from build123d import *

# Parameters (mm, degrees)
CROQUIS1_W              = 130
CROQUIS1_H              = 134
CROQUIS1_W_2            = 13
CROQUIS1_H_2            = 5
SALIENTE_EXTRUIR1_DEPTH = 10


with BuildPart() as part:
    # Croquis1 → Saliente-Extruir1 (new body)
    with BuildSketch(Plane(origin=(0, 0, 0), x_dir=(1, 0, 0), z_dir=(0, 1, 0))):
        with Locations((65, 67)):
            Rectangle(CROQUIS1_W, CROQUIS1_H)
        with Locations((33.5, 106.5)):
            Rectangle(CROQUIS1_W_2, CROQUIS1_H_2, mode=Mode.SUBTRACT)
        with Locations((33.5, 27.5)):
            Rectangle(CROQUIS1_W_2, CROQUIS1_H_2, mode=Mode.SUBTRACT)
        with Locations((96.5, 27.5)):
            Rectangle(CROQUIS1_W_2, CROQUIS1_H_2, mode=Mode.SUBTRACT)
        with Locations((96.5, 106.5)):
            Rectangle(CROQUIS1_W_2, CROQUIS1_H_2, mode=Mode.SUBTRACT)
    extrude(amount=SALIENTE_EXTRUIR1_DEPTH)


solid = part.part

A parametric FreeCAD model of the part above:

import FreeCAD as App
import Part
import Sketcher

doc = App.newDocument("Part")
body = doc.addObject("PartDesign::Body", "Body")

# Sketch on XZ plane
sketch1 = body.newObject("Sketcher::SketchObject", "Sketch")
sketch1.AttachmentSupport = (doc.getObject("XZ_Plane"), [""])
sketch1.MapMode = "FlatFace"
sketch1.addGeometry(Part.LineSegment(App.Vector(0, -134, 0), App.Vector(0, 0, 0)), False)
sketch1.addGeometry(Part.LineSegment(App.Vector(0, 0, 0), App.Vector(130, 0, 0)), False)
sketch1.addGeometry(Part.LineSegment(App.Vector(130, 0, 0), App.Vector(130, -134, 0)), False)
sketch1.addGeometry(Part.LineSegment(App.Vector(130, -134, 0), App.Vector(0, -134, 0)), False)
sketch1.addGeometry(Part.LineSegment(App.Vector(40, -25, 0), App.Vector(27, -25, 0)), False)
sketch1.addGeometry(Part.LineSegment(App.Vector(27, -25, 0), App.Vector(27, -30, 0)), False)
sketch1.addGeometry(Part.LineSegment(App.Vector(27, -30, 0), App.Vector(40, -30, 0)), False)
sketch1.addGeometry(Part.LineSegment(App.Vector(40, -30, 0), App.Vector(40, -25, 0)), False)
sketch1.addGeometry(Part.LineSegment(App.Vector(103, -25, 0), App.Vector(90, -25, 0)), False)
sketch1.addGeometry(Part.LineSegment(App.Vector(90, -25, 0), App.Vector(90, -30, 0)), False)
sketch1.addGeometry(Part.LineSegment(App.Vector(90, -30, 0), App.Vector(103, -30, 0)), False)
sketch1.addGeometry(Part.LineSegment(App.Vector(103, -30, 0), App.Vector(103, -25, 0)), False)
sketch1.addGeometry(Part.LineSegment(App.Vector(40, -104, 0), App.Vector(27, -104, 0)), False)
sketch1.addGeometry(Part.LineSegment(App.Vector(27, -104, 0), App.Vector(27, -109, 0)), False)
sketch1.addGeometry(Part.LineSegment(App.Vector(27, -109, 0), App.Vector(40, -109, 0)), False)
sketch1.addGeometry(Part.LineSegment(App.Vector(40, -109, 0), App.Vector(40, -104, 0)), False)
sketch1.addGeometry(Part.LineSegment(App.Vector(103, -104, 0), App.Vector(90, -104, 0)), False)
sketch1.addGeometry(Part.LineSegment(App.Vector(90, -104, 0), App.Vector(90, -109, 0)), False)
sketch1.addGeometry(Part.LineSegment(App.Vector(90, -109, 0), App.Vector(103, -109, 0)), False)
sketch1.addGeometry(Part.LineSegment(App.Vector(103, -109, 0), App.Vector(103, -104, 0)), False)
sketch1.addConstraint(Sketcher.Constraint("Coincident", 0, 2, 1, 1))
sketch1.addConstraint(Sketcher.Constraint("Coincident", 1, 2, 2, 1))
sketch1.addConstraint(Sketcher.Constraint("Coincident", 2, 2, 3, 1))
sketch1.addConstraint(Sketcher.Constraint("Coincident", 3, 2, 0, 1))
sketch1.addConstraint(Sketcher.Constraint("Coincident", 4, 2, 5, 1))
sketch1.addConstraint(Sketcher.Constraint("Coincident", 5, 2, 6, 1))
sketch1.addConstraint(Sketcher.Constraint("Coincident", 6, 2, 7, 1))
sketch1.addConstraint(Sketcher.Constraint("Coincident", 7, 2, 4, 1))
sketch1.addConstraint(Sketcher.Constraint("Coincident", 8, 2, 9, 1))
sketch1.addConstraint(Sketcher.Constraint("Coincident", 9, 2, 10, 1))
sketch1.addConstraint(Sketcher.Constraint("Coincident", 10, 2, 11, 1))
sketch1.addConstraint(Sketcher.Constraint("Coincident", 11, 2, 8, 1))
sketch1.addConstraint(Sketcher.Constraint("Coincident", 12, 2, 13, 1))
sketch1.addConstraint(Sketcher.Constraint("Coincident", 13, 2, 14, 1))
sketch1.addConstraint(Sketcher.Constraint("Coincident", 14, 2, 15, 1))
sketch1.addConstraint(Sketcher.Constraint("Coincident", 15, 2, 12, 1))
sketch1.addConstraint(Sketcher.Constraint("Coincident", 16, 2, 17, 1))
sketch1.addConstraint(Sketcher.Constraint("Coincident", 17, 2, 18, 1))
sketch1.addConstraint(Sketcher.Constraint("Coincident", 18, 2, 19, 1))
sketch1.addConstraint(Sketcher.Constraint("Coincident", 19, 2, 16, 1))
sketch1.addConstraint(Sketcher.Constraint("Vertical", 0))
sketch1.addConstraint(Sketcher.Constraint("Horizontal", 1))
sketch1.addConstraint(Sketcher.Constraint("Vertical", 2))
sketch1.addConstraint(Sketcher.Constraint("Horizontal", 3))
sketch1.addConstraint(Sketcher.Constraint("Horizontal", 4))
sketch1.addConstraint(Sketcher.Constraint("Vertical", 5))
sketch1.addConstraint(Sketcher.Constraint("Horizontal", 6))
sketch1.addConstraint(Sketcher.Constraint("Vertical", 7))
sketch1.addConstraint(Sketcher.Constraint("Horizontal", 8))
sketch1.addConstraint(Sketcher.Constraint("Vertical", 9))
sketch1.addConstraint(Sketcher.Constraint("Horizontal", 10))
sketch1.addConstraint(Sketcher.Constraint("Vertical", 11))
sketch1.addConstraint(Sketcher.Constraint("Horizontal", 12))
sketch1.addConstraint(Sketcher.Constraint("Vertical", 13))
sketch1.addConstraint(Sketcher.Constraint("Horizontal", 14))
sketch1.addConstraint(Sketcher.Constraint("Vertical", 15))
sketch1.addConstraint(Sketcher.Constraint("Horizontal", 16))
sketch1.addConstraint(Sketcher.Constraint("Vertical", 17))
sketch1.addConstraint(Sketcher.Constraint("Horizontal", 18))
sketch1.addConstraint(Sketcher.Constraint("Vertical", 19))
sketch1.addConstraint(Sketcher.Constraint("Coincident", 0, 2, -1, 1))
sketch1.addConstraint(Sketcher.Constraint("Horizontal", 7, 2, 8, 2))
sketch1.addConstraint(Sketcher.Constraint("Horizontal", 6, 2, 9, 2))
sketch1.addConstraint(Sketcher.Constraint("Horizontal", 15, 2, 16, 2))
sketch1.addConstraint(Sketcher.Constraint("Horizontal", 14, 2, 17, 2))
sketch1.addConstraint(Sketcher.Constraint("Vertical", 5, 2, 12, 2))
sketch1.addConstraint(Sketcher.Constraint("Vertical", 7, 2, 14, 2))
sketch1.addConstraint(Sketcher.Constraint("Vertical", 9, 2, 16, 2))
sketch1.addConstraint(Sketcher.Constraint("Vertical", 11, 2, 18, 2))
sketch1.addConstraint(Sketcher.Constraint("Equal", 6, 8))
sketch1.addConstraint(Sketcher.Constraint("Equal", 11, 13))
sketch1.addConstraint(Sketcher.Constraint("DistanceX", 1, 1, 1, 2, 130.0))
sketch1.addConstraint(Sketcher.Constraint("DistanceX", 4, 2, 4, 1, 13.0))
sketch1.addConstraint(Sketcher.Constraint("DistanceY", 0, 1, 0, 2, 134.0))
sketch1.addConstraint(Sketcher.Constraint("DistanceY", 5, 2, 5, 1, 5.0))
sketch1.addConstraint(Sketcher.Constraint("DistanceX", -1, 1, 4, 2, 27.0))
sketch1.addConstraint(Sketcher.Constraint("DistanceY", 4, 2, -1, 1, 25.0))
sketch1.addConstraint(Sketcher.Constraint("DistanceX", -1, 1, 8, 2, 90.0))
sketch1.addConstraint(Sketcher.Constraint("DistanceY", 12, 2, -1, 1, 104.0))
pad1 = body.newObject("PartDesign::Pad", "Pad")
pad1.Profile = sketch1
pad1.Length = 10
pad1.Reversed = True

doc.recompute()
